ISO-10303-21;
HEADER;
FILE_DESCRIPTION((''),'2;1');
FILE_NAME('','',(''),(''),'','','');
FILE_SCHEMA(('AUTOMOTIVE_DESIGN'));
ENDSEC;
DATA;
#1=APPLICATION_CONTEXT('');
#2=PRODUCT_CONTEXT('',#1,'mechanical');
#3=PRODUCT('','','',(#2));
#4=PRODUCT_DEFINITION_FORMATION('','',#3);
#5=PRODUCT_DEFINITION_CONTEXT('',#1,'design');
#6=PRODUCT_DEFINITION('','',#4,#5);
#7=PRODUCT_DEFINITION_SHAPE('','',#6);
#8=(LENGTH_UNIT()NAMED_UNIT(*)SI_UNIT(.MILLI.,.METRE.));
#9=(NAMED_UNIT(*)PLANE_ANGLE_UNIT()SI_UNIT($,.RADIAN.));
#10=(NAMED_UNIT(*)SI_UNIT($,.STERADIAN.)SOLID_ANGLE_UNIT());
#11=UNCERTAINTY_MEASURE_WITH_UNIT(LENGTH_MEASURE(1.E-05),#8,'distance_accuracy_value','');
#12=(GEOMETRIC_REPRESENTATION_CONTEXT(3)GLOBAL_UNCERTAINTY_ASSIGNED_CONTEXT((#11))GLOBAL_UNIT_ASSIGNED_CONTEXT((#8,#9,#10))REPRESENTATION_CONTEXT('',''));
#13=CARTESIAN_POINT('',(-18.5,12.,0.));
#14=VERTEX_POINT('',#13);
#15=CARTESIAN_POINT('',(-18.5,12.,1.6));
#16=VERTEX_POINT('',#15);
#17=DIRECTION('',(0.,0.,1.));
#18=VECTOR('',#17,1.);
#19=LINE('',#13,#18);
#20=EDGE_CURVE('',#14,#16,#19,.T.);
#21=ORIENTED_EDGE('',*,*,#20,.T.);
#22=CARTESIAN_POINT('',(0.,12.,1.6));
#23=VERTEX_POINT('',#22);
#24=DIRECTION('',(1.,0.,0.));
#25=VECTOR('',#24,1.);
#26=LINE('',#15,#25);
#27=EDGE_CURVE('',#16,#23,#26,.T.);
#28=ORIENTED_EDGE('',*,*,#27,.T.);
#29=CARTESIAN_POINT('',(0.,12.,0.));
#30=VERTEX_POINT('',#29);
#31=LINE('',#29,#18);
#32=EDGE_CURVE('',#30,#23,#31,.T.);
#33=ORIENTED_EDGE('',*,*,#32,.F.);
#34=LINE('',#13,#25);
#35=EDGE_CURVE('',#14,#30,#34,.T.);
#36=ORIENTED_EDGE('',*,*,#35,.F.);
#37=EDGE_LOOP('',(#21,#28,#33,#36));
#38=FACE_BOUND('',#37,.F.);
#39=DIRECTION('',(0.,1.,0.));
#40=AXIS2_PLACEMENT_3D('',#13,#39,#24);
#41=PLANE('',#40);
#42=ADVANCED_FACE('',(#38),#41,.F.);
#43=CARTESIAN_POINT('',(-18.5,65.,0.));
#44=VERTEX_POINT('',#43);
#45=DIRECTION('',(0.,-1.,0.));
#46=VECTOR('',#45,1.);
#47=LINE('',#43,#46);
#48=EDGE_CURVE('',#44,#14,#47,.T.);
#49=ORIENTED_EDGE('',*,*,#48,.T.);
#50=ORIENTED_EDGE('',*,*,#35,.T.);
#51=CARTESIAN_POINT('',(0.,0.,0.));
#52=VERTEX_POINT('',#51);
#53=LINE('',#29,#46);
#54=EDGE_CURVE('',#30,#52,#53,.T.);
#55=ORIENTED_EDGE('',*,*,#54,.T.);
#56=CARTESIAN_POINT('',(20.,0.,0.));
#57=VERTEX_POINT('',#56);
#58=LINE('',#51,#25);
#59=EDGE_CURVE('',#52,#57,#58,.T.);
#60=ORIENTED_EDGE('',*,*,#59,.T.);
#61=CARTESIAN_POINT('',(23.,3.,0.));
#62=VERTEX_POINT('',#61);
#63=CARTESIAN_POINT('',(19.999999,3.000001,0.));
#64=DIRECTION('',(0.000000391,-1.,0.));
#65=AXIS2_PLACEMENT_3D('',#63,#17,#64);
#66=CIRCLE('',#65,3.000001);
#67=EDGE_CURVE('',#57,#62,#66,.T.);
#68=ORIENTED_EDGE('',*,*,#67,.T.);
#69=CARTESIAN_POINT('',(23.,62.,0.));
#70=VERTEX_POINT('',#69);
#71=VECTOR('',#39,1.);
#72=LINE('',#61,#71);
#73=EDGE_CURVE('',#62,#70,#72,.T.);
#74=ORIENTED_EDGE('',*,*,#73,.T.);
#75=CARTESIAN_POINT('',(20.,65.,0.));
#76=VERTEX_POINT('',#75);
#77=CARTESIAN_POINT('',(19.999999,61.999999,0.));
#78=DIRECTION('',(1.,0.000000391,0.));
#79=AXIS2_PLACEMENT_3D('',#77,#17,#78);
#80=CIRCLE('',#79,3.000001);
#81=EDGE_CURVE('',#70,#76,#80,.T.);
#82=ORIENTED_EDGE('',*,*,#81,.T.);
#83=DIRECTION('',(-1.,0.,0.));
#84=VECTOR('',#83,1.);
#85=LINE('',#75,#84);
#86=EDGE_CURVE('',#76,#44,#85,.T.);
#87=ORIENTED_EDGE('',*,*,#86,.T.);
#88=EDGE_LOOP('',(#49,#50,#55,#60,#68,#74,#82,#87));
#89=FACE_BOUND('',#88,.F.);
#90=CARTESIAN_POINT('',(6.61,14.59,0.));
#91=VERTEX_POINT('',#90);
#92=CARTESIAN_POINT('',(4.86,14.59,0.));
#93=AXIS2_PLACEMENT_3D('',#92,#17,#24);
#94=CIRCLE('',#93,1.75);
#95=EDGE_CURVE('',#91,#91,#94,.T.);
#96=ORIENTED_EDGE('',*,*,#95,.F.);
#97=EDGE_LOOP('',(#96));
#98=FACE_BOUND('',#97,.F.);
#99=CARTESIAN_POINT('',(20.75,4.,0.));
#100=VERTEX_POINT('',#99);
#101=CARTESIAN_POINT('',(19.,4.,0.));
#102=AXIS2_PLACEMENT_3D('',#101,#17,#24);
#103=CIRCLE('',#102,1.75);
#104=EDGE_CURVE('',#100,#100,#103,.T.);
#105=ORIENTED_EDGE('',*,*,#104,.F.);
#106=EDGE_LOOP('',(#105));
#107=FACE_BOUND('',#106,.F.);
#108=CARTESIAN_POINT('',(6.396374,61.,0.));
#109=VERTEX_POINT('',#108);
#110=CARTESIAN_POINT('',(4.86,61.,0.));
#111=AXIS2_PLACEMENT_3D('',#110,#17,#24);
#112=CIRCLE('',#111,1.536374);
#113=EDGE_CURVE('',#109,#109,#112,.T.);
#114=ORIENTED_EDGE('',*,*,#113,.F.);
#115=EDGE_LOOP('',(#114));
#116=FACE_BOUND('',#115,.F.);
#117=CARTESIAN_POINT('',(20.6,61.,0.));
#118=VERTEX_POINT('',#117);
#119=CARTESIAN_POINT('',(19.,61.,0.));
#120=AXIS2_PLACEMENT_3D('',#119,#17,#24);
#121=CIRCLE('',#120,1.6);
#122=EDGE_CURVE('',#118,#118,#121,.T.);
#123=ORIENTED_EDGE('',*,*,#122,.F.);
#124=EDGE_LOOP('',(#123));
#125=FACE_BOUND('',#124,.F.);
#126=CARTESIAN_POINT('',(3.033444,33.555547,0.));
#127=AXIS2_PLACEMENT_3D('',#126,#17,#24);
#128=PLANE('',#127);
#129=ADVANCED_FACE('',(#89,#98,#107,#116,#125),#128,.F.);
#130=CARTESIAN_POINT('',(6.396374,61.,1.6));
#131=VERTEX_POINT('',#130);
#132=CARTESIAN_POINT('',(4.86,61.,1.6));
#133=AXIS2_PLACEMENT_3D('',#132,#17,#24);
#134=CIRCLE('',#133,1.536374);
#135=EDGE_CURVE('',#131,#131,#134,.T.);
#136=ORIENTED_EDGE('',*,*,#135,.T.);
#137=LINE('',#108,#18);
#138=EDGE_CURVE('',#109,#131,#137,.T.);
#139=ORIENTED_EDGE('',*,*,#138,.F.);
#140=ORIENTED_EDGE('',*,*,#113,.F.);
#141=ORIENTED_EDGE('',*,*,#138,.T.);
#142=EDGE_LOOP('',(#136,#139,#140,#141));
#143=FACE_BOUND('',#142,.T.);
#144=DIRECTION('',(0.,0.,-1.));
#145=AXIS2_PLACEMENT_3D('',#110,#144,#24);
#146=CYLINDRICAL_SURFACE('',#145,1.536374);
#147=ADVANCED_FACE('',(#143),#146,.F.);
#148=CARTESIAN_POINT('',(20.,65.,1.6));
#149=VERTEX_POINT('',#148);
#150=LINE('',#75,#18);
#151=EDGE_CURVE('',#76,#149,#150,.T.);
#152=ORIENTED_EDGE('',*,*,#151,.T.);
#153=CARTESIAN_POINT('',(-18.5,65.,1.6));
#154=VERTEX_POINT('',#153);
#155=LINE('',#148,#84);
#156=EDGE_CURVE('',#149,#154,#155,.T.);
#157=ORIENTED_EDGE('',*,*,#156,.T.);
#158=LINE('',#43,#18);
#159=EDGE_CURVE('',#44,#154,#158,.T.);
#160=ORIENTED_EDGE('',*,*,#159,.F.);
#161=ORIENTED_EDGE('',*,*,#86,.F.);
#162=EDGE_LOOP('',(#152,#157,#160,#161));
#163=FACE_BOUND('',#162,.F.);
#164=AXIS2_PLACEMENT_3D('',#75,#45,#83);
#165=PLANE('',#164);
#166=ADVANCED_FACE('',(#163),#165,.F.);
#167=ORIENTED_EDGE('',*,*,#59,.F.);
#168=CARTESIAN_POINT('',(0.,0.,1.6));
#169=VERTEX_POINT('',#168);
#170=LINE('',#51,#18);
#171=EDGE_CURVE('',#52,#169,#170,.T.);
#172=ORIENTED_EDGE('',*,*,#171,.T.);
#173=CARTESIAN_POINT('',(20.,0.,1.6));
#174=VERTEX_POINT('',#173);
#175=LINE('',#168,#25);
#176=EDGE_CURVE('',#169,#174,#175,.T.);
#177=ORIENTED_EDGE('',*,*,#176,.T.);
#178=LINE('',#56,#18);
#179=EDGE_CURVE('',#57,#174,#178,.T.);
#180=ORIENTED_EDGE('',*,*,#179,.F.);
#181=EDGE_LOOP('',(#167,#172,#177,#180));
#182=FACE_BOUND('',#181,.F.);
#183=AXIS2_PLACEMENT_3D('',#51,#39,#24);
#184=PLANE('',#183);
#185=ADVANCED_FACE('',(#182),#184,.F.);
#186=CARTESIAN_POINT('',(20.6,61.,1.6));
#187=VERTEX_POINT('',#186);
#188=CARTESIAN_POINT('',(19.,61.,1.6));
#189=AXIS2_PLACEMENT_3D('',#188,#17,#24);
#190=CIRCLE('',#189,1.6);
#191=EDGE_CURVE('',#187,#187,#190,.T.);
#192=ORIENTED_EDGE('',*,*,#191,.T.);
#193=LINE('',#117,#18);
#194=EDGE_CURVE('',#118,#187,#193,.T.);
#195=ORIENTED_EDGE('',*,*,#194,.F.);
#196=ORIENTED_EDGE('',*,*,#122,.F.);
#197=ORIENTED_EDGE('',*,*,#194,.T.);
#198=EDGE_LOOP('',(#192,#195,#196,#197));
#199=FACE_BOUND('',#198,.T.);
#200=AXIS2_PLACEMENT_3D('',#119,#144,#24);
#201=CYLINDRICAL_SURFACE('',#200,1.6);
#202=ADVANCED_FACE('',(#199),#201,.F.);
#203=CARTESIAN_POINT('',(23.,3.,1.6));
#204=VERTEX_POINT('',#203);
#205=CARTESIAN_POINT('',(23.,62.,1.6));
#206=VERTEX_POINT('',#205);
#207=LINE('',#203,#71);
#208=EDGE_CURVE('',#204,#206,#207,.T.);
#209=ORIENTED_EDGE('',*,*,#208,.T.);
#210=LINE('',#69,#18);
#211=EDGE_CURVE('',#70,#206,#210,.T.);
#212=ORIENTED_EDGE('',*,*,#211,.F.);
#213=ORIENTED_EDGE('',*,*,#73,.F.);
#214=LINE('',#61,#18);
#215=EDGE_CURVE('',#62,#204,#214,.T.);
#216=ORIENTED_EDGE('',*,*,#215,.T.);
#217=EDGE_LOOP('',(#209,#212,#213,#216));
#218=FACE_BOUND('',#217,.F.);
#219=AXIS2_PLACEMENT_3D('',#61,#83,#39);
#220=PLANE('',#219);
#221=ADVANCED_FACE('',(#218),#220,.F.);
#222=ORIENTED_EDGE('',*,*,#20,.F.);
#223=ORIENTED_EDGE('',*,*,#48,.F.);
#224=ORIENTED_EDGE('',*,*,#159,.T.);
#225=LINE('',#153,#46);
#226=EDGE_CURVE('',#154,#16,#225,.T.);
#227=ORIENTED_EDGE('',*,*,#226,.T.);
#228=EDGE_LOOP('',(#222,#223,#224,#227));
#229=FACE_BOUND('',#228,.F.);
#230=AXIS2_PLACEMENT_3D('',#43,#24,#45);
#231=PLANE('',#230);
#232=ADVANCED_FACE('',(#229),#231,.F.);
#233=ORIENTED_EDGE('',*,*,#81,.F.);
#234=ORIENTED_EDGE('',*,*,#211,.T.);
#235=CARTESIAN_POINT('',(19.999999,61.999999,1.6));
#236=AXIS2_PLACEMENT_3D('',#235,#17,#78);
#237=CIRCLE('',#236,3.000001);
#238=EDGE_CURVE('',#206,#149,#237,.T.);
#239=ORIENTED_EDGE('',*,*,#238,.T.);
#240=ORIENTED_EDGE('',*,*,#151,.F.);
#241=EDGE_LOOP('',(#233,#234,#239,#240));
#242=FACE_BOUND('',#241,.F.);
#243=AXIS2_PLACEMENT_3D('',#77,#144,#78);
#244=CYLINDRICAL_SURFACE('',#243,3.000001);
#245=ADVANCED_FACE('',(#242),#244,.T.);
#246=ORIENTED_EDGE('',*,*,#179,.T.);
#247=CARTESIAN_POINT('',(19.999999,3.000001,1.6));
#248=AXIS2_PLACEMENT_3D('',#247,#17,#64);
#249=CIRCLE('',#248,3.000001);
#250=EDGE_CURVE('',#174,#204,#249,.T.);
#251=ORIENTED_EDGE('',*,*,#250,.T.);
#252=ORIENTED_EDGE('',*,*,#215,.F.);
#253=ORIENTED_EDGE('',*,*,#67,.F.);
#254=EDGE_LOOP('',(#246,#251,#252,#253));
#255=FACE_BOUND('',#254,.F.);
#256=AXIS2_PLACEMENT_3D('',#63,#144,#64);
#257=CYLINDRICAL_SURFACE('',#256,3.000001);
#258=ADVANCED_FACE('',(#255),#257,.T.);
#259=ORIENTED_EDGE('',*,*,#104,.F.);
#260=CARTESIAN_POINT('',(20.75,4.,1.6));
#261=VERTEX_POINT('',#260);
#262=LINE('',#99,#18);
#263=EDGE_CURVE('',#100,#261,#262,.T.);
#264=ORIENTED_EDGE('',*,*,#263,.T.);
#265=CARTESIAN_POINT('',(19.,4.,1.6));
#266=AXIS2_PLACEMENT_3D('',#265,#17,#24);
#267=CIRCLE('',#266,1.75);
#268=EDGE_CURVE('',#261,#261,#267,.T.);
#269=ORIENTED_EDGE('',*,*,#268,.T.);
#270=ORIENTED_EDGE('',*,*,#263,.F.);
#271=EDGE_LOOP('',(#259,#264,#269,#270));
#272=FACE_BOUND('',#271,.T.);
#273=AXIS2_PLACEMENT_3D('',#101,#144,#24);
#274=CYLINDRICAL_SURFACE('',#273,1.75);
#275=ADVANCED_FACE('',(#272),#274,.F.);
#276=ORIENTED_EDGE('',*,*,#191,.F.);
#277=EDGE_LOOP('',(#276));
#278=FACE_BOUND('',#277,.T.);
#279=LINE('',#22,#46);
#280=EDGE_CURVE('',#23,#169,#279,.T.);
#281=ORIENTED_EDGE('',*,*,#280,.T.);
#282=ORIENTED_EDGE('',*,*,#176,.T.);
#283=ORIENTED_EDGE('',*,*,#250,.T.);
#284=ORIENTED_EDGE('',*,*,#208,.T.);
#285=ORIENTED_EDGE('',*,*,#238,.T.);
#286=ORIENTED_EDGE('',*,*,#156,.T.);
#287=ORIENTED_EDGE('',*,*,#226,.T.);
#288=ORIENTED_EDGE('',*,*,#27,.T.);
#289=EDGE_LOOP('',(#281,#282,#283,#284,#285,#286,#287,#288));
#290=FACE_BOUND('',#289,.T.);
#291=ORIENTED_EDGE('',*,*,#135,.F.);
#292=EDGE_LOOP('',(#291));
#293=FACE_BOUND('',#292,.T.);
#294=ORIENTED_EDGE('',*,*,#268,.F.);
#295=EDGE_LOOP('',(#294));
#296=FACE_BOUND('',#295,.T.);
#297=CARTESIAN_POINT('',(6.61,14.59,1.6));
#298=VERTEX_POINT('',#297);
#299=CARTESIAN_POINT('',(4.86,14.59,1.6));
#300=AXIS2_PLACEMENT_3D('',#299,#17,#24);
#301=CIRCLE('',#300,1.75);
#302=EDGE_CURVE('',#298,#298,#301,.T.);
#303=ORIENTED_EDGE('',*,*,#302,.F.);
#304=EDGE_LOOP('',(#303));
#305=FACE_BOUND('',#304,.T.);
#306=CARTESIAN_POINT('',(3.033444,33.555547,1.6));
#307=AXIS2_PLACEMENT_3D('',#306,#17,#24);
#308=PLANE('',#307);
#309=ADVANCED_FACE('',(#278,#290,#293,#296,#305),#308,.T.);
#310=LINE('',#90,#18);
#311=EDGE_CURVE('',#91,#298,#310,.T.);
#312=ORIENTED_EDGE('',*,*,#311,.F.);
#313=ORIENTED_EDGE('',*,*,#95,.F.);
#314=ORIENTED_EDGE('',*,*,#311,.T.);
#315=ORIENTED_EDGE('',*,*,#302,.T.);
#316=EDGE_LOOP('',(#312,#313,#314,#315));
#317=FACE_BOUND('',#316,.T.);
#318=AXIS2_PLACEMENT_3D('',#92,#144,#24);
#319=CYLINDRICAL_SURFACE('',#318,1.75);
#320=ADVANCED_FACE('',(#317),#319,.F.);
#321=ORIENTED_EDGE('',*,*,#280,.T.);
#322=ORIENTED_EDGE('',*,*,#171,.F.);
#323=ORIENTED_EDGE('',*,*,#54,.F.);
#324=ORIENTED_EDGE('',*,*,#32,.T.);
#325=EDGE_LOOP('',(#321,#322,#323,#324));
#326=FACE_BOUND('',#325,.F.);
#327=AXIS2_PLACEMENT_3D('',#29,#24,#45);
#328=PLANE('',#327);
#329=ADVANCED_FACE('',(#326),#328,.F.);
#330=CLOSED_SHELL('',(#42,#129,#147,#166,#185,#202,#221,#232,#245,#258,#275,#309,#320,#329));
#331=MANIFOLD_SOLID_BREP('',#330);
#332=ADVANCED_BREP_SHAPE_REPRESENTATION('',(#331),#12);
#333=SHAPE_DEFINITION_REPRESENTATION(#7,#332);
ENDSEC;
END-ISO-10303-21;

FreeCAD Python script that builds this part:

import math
import FreeCAD as App
import Part
import Sketcher

V = App.Vector

doc = App.newDocument("Part")
body = doc.addObject("PartDesign::Body", "Body")

# Sketch on XY plane
sketch1 = doc.addObject("Sketcher::SketchObject", "Sketch")
body.addObject(sketch1)
sketch1.AttachmentSupport = (doc.XY_Plane, [""])
sketch1.MapMode = "FlatFace"
sketch1.addGeometry(Part.LineSegment(V(0, 12, 0), V(0, 0, 0)), False)
sketch1.addGeometry(Part.LineSegment(V(0, 0, 0), V(20, 0, 0)), False)
sketch1.addGeometry(Part.ArcOfCircle(Part.Circle(V(19.999999, 3.000001, 0), V(0, 0, 1), 3.000001), math.radians(-89.999978), math.radians(-0.000022)), False)
sketch1.addGeometry(Part.LineSegment(V(23, 3, 0), V(23, 62, 0)), False)
sketch1.addGeometry(Part.ArcOfCircle(Part.Circle(V(19.999999, 61.999999, 0), V(0, 0, 1), 3.000001), math.radians(0.000022), math.radians(89.999978)), False)
sketch1.addGeometry(Part.LineSegment(V(20, 65, 0), V(-18.5, 65, 0)), False)
sketch1.addGeometry(Part.LineSegment(V(-18.5, 65, 0), V(-18.5, 12, 0)), False)
sketch1.addGeometry(Part.LineSegment(V(-18.5, 12, 0), V(0, 12, 0)), False)
sketch1.addGeometry(Part.Circle(V(4.86, 14.59, 0), V(0, 0, 1), 1.75), False)
sketch1.addGeometry(Part.Circle(V(19, 4, 0), V(0, 0, 1), 1.75), False)
sketch1.addGeometry(Part.Circle(V(4.86, 61, 0), V(0, 0, 1), 1.536374), False)
sketch1.addGeometry(Part.Circle(V(19, 61, 0), V(0, 0, 1), 1.6), False)
sketch1.addConstraint(Sketcher.Constraint("Coincident", 0, 2, 1, 1))
sketch1.addConstraint(Sketcher.Constraint("Tangent", 1, 2, 2, 1))
sketch1.addConstraint(Sketcher.Constraint("Tangent", 2, 2, 3, 1))
sketch1.addConstraint(Sketcher.Constraint("Tangent", 3, 2, 4, 1))
sketch1.addConstraint(Sketcher.Constraint("Tangent", 4, 2, 5, 1))
sketch1.addConstraint(Sketcher.Constraint("Coincident", 5, 2, 6, 1))
sketch1.addConstraint(Sketcher.Constraint("Coincident", 6, 2, 7, 1))
sketch1.addConstraint(Sketcher.Constraint("Coincident", 7, 2, 0, 1))
sketch1.addConstraint(Sketcher.Constraint("Vertical", 0))
sketch1.addConstraint(Sketcher.Constraint("Horizontal", 1))
sketch1.addConstraint(Sketcher.Constraint("Vertical", 3))
sketch1.addConstraint(Sketcher.Constraint("Horizontal", 5))
sketch1.addConstraint(Sketcher.Constraint("Vertical", 6))
sketch1.addConstraint(Sketcher.Constraint("Horizontal", 7))
sketch1.addConstraint(Sketcher.Constraint("Coincident", 0, 2, -1, 1))
sketch1.addConstraint(Sketcher.Constraint("Equal", 2, 4))
sketch1.addConstraint(Sketcher.Constraint("Equal", 8, 9))
sketch1.addConstraint(Sketcher.Constraint("Horizontal", 10, 3, 11, 3))
sketch1.addConstraint(Sketcher.Constraint("Vertical", 8, 3, 10, 3))
sketch1.addConstraint(Sketcher.Constraint("Vertical", 9, 3, 11, 3))
sketch1.addConstraint(Sketcher.Constraint("Radius", 2, 3.000001))
sketch1.addConstraint(Sketcher.Constraint("Diameter", 8, 3.5))
sketch1.addConstraint(Sketcher.Constraint("Diameter", 11, 3.2))
sketch1.addConstraint(Sketcher.Constraint("DistanceX", 1, 1, 1, 2, 20.0))
sketch1.addConstraint(Sketcher.Constraint("DistanceY", 0, 2, 0, 1, 12.0))
sketch1.addConstraint(Sketcher.Constraint("DistanceY", 3, 1, 3, 2, 59.0))
sketch1.addConstraint(Sketcher.Constraint("DistanceX", 5, 2, 5, 1, 38.5))
sketch1.addConstraint(Sketcher.Constraint("DistanceX", -1, 1, 9, 3, 19.0))
sketch1.addConstraint(Sketcher.Constraint("DistanceY", -1, 1, 9, 3, 4.0))
sketch1.addConstraint(Sketcher.Constraint("DistanceY", -1, 1, 10, 3, 61.0))
sketch1.addConstraint(Sketcher.Constraint("DistanceX", -1, 1, 8, 3, 4.86))
sketch1.addConstraint(Sketcher.Constraint("DistanceY", -1, 1, 8, 3, 14.59))
sketch1.addConstraint(Sketcher.Constraint("Diameter", 10, 3.072748))
pad1 = doc.addObject("PartDesign::Pad", "Pad")
body.addObject(pad1)
pad1.Profile = sketch1
pad1.Length = 1.6

doc.recompute()
